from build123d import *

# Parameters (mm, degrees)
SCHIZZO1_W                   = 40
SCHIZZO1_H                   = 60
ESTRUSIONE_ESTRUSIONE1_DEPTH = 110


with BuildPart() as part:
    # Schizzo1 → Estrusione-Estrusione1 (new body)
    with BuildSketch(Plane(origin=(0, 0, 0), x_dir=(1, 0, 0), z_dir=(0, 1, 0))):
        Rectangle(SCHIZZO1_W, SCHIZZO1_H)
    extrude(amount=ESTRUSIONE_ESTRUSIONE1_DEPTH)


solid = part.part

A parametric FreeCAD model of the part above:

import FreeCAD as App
import Part
import Sketcher

V = App.Vector


def add_polygon(sketch, points):
    """Adds a closed chain of lines whose ends are joined by coincident constraints."""
    first, n = sketch.GeometryCount, len(points)
    for a, b in zip(points, points[1:] + points[:1]):
        sketch.addGeometry(Part.LineSegment(App.Vector(*a, 0), App.Vector(*b, 0)), False)
    for i in range(n):
        sketch.addConstraint(Sketcher.Constraint("Coincident", first + i, 2, first + (i + 1) % n, 1))

doc = App.newDocument("Part")
params = doc.addObject("Spreadsheet::Sheet", "Params")
for row, (alias, value) in enumerate([
    ("sketch1_width", "40 mm"),
    ("sketch1_height", "60 mm"),
    ("pad1_length", "110 mm"),
], start=1):
    params.set(f"A{row}", alias)
    params.set(f"B{row}", "=" + value)
    params.setAlias(f"B{row}", alias)

body = doc.addObject("PartDesign::Body", "Body")

sketch1 = doc.addObject("Sketcher::SketchObject", "Sketch")
body.addObject(sketch1)
sketch1.AttachmentSupport = (doc.XZ_Plane, [""])
sketch1.MapMode = "FlatFace"
add_polygon(sketch1, [(-20, -30), (-20, 30), (20, 30), (20, -30)])
sketch1.addConstraint([
    Sketcher.Constraint("Vertical", 0),
    Sketcher.Constraint("Horizontal", 1),
    Sketcher.Constraint("Vertical", 2),
    Sketcher.Constraint("Horizontal", 3),
    Sketcher.Constraint("Symmetric", 0, 2, 2, 2, -1, 1),
    Sketcher.Constraint("DistanceX", 1, 1, 1, 2, 40.0),
    Sketcher.Constraint("DistanceY", 0, 1, 0, 2, 60.0),
])
sketch1.setExpression("Constraints[9]", "Params.sketch1_width")
sketch1.setExpression("Constraints[10]", "Params.sketch1_height")
pad1 = doc.addObject("PartDesign::Pad", "Pad")
body.addObject(pad1)
pad1.Profile = sketch1
pad1.setExpression("Length", "Params.pad1_length")
pad1.Reversed = True

doc.recompute()
